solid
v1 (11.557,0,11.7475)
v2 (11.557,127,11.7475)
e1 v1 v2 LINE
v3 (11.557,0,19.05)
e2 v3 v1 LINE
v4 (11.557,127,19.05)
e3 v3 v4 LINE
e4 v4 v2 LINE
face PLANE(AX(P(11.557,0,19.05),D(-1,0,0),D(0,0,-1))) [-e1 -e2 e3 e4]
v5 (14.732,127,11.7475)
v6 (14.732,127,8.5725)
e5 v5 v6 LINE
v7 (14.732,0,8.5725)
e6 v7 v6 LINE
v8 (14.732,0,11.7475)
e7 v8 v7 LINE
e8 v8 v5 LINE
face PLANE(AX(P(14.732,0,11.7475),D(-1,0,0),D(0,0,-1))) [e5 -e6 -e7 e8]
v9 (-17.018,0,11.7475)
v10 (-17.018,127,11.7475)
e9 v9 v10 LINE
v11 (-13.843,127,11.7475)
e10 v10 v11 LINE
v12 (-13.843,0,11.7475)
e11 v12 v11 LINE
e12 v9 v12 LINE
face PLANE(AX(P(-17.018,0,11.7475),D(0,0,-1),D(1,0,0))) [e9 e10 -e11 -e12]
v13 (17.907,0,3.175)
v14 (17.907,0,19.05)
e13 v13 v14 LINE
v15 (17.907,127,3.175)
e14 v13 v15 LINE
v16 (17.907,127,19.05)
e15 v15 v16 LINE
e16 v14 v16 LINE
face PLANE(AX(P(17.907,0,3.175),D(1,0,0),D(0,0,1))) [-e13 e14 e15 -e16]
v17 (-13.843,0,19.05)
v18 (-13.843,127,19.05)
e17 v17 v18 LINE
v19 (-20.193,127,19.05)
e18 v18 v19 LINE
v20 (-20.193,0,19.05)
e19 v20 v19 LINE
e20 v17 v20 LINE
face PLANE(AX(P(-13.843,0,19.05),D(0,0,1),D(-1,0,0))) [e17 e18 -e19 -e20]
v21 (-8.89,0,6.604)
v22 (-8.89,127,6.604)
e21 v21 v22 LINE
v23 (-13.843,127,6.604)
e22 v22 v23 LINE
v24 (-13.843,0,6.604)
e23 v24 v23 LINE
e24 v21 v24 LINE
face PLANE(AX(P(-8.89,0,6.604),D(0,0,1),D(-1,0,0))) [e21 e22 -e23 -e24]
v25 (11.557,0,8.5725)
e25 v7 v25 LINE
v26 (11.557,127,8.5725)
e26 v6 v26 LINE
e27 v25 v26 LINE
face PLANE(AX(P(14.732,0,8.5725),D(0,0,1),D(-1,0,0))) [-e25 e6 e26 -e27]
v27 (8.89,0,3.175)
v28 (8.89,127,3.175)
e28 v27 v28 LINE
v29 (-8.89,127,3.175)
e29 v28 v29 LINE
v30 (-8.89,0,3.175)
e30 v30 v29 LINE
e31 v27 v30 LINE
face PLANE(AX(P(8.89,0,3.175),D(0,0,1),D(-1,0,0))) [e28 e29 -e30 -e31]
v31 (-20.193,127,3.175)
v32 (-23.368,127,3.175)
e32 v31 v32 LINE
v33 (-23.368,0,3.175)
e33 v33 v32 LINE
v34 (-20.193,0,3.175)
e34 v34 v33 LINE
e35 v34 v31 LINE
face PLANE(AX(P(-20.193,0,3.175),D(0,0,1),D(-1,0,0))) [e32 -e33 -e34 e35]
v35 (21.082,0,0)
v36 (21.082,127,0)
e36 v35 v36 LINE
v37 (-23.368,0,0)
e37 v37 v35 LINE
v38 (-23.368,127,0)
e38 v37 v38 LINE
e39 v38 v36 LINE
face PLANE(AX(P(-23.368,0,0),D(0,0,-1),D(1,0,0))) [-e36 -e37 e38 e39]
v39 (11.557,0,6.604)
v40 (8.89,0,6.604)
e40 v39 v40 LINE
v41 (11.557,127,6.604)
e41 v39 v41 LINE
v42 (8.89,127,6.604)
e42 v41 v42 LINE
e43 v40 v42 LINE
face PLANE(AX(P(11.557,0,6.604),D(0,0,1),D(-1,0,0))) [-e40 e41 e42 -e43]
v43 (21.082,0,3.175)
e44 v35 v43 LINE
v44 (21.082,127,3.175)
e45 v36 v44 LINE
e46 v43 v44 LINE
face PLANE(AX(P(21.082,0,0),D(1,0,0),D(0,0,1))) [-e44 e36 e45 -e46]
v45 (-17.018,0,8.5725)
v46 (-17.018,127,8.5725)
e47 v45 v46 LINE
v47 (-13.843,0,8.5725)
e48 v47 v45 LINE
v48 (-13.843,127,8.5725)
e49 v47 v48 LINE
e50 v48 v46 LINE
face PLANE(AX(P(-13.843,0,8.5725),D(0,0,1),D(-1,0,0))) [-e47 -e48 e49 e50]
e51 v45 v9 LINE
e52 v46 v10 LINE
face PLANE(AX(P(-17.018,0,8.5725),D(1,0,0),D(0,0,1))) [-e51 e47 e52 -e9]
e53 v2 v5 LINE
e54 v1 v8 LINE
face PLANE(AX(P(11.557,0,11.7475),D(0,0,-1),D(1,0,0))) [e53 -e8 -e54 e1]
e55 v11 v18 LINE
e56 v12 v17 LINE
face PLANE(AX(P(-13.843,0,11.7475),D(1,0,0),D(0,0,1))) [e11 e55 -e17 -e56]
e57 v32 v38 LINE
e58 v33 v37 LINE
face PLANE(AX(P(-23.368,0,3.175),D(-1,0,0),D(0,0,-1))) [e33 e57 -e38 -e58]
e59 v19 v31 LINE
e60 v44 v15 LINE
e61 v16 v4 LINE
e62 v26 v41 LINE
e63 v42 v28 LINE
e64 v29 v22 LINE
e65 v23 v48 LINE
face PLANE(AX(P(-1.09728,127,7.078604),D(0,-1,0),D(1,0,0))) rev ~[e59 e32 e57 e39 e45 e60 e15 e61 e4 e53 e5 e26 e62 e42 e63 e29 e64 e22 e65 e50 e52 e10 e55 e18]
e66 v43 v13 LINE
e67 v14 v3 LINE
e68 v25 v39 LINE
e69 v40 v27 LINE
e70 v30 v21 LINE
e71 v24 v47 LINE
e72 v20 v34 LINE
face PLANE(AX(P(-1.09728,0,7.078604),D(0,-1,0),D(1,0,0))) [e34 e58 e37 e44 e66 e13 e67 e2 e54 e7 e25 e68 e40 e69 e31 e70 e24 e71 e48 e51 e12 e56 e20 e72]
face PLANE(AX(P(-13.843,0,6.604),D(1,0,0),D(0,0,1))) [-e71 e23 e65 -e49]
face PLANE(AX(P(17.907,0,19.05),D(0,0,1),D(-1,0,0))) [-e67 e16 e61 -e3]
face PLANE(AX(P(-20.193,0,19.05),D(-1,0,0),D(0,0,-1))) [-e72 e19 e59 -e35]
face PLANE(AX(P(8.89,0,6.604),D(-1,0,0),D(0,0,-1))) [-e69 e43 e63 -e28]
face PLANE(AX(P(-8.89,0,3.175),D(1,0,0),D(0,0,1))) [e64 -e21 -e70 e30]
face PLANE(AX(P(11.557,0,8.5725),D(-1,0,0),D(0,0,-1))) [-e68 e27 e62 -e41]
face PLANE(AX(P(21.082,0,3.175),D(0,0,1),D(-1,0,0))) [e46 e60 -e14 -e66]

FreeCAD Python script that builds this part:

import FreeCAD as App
import Part
import Sketcher
from FreeCAD import Vector
Q = App.Units.Quantity

doc = App.newDocument("Part")
body = doc.addObject("PartDesign::Body", "Body")

# Sketch on XZ plane
sketch1 = body.newObject("Sketcher::SketchObject", "Sketch")
sketch1.AttachmentSupport = (doc.getObject("XZ_Plane"), [""])
sketch1.MapMode = "FlatFace"
sketch1.addGeometry([
    Part.LineSegment(Vector(-23.4, 0, 0), Vector(21.1, 0, 0)),  # 0
    Part.LineSegment(Vector(21.1, 0, 0), Vector(21.1, 3.2, 0)),  # 1
    Part.LineSegment(Vector(21.1, 3.2, 0), Vector(17.9, 3.2, 0)),  # 2
    Part.LineSegment(Vector(17.9, 3.2, 0), Vector(17.9, 19.1, 0)),  # 3
    Part.LineSegment(Vector(17.9, 19.1, 0), Vector(11.6, 19.1, 0)),  # 4
    Part.LineSegment(Vector(11.6, 19.1, 0), Vector(11.6, 11.7, 0)),  # 5
    Part.LineSegment(Vector(11.6, 11.7, 0), Vector(14.7, 11.7, 0)),  # 6
    Part.LineSegment(Vector(14.7, 11.7, 0), Vector(14.7, 8.6, 0)),  # 7
    Part.LineSegment(Vector(14.7, 8.6, 0), Vector(11.6, 8.6, 0)),  # 8
    Part.LineSegment(Vector(11.6, 8.6, 0), Vector(11.6, 6.6, 0)),  # 9
    Part.LineSegment(Vector(11.6, 6.6, 0), Vector(8.9, 6.6, 0)),  # 10
    Part.LineSegment(Vector(8.9, 6.6, 0), Vector(8.9, 3.2, 0)),  # 11
    Part.LineSegment(Vector(8.9, 3.2, 0), Vector(-8.9, 3.2, 0)),  # 12
    Part.LineSegment(Vector(-8.9, 3.2, 0), Vector(-8.9, 6.6, 0)),  # 13
    Part.LineSegment(Vector(-8.9, 6.6, 0), Vector(-13.8, 6.6, 0)),  # 14
    Part.LineSegment(Vector(-13.8, 6.6, 0), Vector(-13.8, 8.6, 0)),  # 15
    Part.LineSegment(Vector(-13.8, 8.6, 0), Vector(-17, 8.6, 0)),  # 16
    Part.LineSegment(Vector(-17, 8.6, 0), Vector(-17, 11.7, 0)),  # 17
    Part.LineSegment(Vector(-17, 11.7, 0), Vector(-13.8, 11.7, 0)),  # 18
    Part.LineSegment(Vector(-13.8, 11.7, 0), Vector(-13.8, 19.1, 0)),  # 19
    Part.LineSegment(Vector(-13.8, 19.1, 0), Vector(-20.2, 19.1, 0)),  # 20
    Part.LineSegment(Vector(-20.2, 19.1, 0), Vector(-20.2, 3.2, 0)),  # 21
    Part.LineSegment(Vector(-20.2, 3.2, 0), Vector(-23.4, 3.2, 0)),  # 22
    Part.LineSegment(Vector(-23.4, 3.2, 0), Vector(-23.4, 0, 0)),  # 23
], False)
sketch1.addConstraint([
    Sketcher.Constraint("Coincident", 0, 2, 1, 1),
    Sketcher.Constraint("Coincident", 1, 2, 2, 1),
    Sketcher.Constraint("Coincident", 2, 2, 3, 1),
    Sketcher.Constraint("Coincident", 3, 2, 4, 1),
    Sketcher.Constraint("Coincident", 4, 2, 5, 1),
    Sketcher.Constraint("Coincident", 5, 2, 6, 1),
    Sketcher.Constraint("Coincident", 6, 2, 7, 1),
    Sketcher.Constraint("Coincident", 7, 2, 8, 1),
    Sketcher.Constraint("Coincident", 8, 2, 9, 1),
    Sketcher.Constraint("Coincident", 9, 2, 10, 1),
    Sketcher.Constraint("Coincident", 10, 2, 11, 1),
    Sketcher.Constraint("Coincident", 11, 2, 12, 1),
    Sketcher.Constraint("Coincident", 12, 2, 13, 1),
    Sketcher.Constraint("Coincident", 13, 2, 14, 1),
    Sketcher.Constraint("Coincident", 14, 2, 15, 1),
    Sketcher.Constraint("Coincident", 15, 2, 16, 1),
    Sketcher.Constraint("Coincident", 16, 2, 17, 1),
    Sketcher.Constraint("Coincident", 17, 2, 18, 1),
    Sketcher.Constraint("Coincident", 18, 2, 19, 1),
    Sketcher.Constraint("Coincident", 19, 2, 20, 1),
    Sketcher.Constraint("Coincident", 20, 2, 21, 1),
    Sketcher.Constraint("Coincident", 21, 2, 22, 1),
    Sketcher.Constraint("Coincident", 22, 2, 23, 1),
    Sketcher.Constraint("Coincident", 23, 2, 0, 1),
    Sketcher.Constraint("Horizontal", 0),
    Sketcher.Constraint("Vertical", 1),
    Sketcher.Constraint("Horizontal", 2),
    Sketcher.Constraint("Vertical", 3),
    Sketcher.Constraint("Horizontal", 4),
    Sketcher.Constraint("Vertical", 5),
    Sketcher.Constraint("Horizontal", 6),
    Sketcher.Constraint("Vertical", 7),
    Sketcher.Constraint("Horizontal", 8),
    Sketcher.Constraint("Vertical", 9),
    Sketcher.Constraint("Horizontal", 10),
    Sketcher.Constraint("Vertical", 11),
    Sketcher.Constraint("Horizontal", 12),
    Sketcher.Constraint("Vertical", 13),
    Sketcher.Constraint("Horizontal", 14),
    Sketcher.Constraint("Vertical", 15),
    Sketcher.Constraint("Horizontal", 16),
    Sketcher.Constraint("Vertical", 17),
    Sketcher.Constraint("Horizontal", 18),
    Sketcher.Constraint("Vertical", 19),
    Sketcher.Constraint("Horizontal", 20),
    Sketcher.Constraint("Vertical", 21),
    Sketcher.Constraint("Horizontal", 22),
    Sketcher.Constraint("Vertical", 23),
    Sketcher.Constraint("Symmetric", 10, 2, 13, 2, -2),
    Sketcher.Constraint("PointOnObject", 0, 2, -1),
    Sketcher.Constraint("Horizontal", 2, 2, 11, 2),
    Sketcher.Constraint("Horizontal", 8, 2, 15, 2),
    Sketcher.Constraint("Horizontal", 6, 2, 17, 2),
    Sketcher.Constraint("Horizontal", 4, 2, 19, 2),
    Sketcher.Constraint("Horizontal", 12, 2, 21, 2),
    Sketcher.Constraint("Vertical", 5, 2, 8, 2),
    Sketcher.Constraint("Vertical", 15, 2, 18, 2),
    Sketcher.Constraint("Equal", 2, 6),
    Sketcher.Constraint("Equal", 8, 16),
    Sketcher.Constraint("Equal", 4, 20),
    Sketcher.Constraint("Equal", 18, 22),
    Sketcher.Constraint("Equal", 22, 1),
    Sketcher.Constraint("Equal", 1, 7),
    Sketcher.Constraint("DistanceX", 12, 2, 12, 1, Q("0.7 in")),
    Sketcher.Constraint("DistanceX", 14, 2, 9, 2, Q("1 in")),
    Sketcher.Constraint("DistanceX", 0, 1, 0, 2, Q("1.75 in")),
    Sketcher.Constraint("DistanceX", 4, 2, 4, 1, Q("0.25 in")),
    Sketcher.Constraint("DistanceX", 10, 2, 10, 1, Q("0.105 in")),
    Sketcher.Constraint("DistanceY", 3, 1, 3, 2, Q("0.625 in")),
    Sketcher.Constraint("DistanceY", 11, 2, 11, 1, Q("0.135 in")),
    Sketcher.Constraint("DistanceY", 5, 2, 5, 1, Q("0.2875 in")),
])
pad1 = body.newObject("PartDesign::Pad", "Pad")
pad1.Profile = sketch1
pad1.Length = Q("5 in")
pad1.Reversed = True

doc.recompute()
